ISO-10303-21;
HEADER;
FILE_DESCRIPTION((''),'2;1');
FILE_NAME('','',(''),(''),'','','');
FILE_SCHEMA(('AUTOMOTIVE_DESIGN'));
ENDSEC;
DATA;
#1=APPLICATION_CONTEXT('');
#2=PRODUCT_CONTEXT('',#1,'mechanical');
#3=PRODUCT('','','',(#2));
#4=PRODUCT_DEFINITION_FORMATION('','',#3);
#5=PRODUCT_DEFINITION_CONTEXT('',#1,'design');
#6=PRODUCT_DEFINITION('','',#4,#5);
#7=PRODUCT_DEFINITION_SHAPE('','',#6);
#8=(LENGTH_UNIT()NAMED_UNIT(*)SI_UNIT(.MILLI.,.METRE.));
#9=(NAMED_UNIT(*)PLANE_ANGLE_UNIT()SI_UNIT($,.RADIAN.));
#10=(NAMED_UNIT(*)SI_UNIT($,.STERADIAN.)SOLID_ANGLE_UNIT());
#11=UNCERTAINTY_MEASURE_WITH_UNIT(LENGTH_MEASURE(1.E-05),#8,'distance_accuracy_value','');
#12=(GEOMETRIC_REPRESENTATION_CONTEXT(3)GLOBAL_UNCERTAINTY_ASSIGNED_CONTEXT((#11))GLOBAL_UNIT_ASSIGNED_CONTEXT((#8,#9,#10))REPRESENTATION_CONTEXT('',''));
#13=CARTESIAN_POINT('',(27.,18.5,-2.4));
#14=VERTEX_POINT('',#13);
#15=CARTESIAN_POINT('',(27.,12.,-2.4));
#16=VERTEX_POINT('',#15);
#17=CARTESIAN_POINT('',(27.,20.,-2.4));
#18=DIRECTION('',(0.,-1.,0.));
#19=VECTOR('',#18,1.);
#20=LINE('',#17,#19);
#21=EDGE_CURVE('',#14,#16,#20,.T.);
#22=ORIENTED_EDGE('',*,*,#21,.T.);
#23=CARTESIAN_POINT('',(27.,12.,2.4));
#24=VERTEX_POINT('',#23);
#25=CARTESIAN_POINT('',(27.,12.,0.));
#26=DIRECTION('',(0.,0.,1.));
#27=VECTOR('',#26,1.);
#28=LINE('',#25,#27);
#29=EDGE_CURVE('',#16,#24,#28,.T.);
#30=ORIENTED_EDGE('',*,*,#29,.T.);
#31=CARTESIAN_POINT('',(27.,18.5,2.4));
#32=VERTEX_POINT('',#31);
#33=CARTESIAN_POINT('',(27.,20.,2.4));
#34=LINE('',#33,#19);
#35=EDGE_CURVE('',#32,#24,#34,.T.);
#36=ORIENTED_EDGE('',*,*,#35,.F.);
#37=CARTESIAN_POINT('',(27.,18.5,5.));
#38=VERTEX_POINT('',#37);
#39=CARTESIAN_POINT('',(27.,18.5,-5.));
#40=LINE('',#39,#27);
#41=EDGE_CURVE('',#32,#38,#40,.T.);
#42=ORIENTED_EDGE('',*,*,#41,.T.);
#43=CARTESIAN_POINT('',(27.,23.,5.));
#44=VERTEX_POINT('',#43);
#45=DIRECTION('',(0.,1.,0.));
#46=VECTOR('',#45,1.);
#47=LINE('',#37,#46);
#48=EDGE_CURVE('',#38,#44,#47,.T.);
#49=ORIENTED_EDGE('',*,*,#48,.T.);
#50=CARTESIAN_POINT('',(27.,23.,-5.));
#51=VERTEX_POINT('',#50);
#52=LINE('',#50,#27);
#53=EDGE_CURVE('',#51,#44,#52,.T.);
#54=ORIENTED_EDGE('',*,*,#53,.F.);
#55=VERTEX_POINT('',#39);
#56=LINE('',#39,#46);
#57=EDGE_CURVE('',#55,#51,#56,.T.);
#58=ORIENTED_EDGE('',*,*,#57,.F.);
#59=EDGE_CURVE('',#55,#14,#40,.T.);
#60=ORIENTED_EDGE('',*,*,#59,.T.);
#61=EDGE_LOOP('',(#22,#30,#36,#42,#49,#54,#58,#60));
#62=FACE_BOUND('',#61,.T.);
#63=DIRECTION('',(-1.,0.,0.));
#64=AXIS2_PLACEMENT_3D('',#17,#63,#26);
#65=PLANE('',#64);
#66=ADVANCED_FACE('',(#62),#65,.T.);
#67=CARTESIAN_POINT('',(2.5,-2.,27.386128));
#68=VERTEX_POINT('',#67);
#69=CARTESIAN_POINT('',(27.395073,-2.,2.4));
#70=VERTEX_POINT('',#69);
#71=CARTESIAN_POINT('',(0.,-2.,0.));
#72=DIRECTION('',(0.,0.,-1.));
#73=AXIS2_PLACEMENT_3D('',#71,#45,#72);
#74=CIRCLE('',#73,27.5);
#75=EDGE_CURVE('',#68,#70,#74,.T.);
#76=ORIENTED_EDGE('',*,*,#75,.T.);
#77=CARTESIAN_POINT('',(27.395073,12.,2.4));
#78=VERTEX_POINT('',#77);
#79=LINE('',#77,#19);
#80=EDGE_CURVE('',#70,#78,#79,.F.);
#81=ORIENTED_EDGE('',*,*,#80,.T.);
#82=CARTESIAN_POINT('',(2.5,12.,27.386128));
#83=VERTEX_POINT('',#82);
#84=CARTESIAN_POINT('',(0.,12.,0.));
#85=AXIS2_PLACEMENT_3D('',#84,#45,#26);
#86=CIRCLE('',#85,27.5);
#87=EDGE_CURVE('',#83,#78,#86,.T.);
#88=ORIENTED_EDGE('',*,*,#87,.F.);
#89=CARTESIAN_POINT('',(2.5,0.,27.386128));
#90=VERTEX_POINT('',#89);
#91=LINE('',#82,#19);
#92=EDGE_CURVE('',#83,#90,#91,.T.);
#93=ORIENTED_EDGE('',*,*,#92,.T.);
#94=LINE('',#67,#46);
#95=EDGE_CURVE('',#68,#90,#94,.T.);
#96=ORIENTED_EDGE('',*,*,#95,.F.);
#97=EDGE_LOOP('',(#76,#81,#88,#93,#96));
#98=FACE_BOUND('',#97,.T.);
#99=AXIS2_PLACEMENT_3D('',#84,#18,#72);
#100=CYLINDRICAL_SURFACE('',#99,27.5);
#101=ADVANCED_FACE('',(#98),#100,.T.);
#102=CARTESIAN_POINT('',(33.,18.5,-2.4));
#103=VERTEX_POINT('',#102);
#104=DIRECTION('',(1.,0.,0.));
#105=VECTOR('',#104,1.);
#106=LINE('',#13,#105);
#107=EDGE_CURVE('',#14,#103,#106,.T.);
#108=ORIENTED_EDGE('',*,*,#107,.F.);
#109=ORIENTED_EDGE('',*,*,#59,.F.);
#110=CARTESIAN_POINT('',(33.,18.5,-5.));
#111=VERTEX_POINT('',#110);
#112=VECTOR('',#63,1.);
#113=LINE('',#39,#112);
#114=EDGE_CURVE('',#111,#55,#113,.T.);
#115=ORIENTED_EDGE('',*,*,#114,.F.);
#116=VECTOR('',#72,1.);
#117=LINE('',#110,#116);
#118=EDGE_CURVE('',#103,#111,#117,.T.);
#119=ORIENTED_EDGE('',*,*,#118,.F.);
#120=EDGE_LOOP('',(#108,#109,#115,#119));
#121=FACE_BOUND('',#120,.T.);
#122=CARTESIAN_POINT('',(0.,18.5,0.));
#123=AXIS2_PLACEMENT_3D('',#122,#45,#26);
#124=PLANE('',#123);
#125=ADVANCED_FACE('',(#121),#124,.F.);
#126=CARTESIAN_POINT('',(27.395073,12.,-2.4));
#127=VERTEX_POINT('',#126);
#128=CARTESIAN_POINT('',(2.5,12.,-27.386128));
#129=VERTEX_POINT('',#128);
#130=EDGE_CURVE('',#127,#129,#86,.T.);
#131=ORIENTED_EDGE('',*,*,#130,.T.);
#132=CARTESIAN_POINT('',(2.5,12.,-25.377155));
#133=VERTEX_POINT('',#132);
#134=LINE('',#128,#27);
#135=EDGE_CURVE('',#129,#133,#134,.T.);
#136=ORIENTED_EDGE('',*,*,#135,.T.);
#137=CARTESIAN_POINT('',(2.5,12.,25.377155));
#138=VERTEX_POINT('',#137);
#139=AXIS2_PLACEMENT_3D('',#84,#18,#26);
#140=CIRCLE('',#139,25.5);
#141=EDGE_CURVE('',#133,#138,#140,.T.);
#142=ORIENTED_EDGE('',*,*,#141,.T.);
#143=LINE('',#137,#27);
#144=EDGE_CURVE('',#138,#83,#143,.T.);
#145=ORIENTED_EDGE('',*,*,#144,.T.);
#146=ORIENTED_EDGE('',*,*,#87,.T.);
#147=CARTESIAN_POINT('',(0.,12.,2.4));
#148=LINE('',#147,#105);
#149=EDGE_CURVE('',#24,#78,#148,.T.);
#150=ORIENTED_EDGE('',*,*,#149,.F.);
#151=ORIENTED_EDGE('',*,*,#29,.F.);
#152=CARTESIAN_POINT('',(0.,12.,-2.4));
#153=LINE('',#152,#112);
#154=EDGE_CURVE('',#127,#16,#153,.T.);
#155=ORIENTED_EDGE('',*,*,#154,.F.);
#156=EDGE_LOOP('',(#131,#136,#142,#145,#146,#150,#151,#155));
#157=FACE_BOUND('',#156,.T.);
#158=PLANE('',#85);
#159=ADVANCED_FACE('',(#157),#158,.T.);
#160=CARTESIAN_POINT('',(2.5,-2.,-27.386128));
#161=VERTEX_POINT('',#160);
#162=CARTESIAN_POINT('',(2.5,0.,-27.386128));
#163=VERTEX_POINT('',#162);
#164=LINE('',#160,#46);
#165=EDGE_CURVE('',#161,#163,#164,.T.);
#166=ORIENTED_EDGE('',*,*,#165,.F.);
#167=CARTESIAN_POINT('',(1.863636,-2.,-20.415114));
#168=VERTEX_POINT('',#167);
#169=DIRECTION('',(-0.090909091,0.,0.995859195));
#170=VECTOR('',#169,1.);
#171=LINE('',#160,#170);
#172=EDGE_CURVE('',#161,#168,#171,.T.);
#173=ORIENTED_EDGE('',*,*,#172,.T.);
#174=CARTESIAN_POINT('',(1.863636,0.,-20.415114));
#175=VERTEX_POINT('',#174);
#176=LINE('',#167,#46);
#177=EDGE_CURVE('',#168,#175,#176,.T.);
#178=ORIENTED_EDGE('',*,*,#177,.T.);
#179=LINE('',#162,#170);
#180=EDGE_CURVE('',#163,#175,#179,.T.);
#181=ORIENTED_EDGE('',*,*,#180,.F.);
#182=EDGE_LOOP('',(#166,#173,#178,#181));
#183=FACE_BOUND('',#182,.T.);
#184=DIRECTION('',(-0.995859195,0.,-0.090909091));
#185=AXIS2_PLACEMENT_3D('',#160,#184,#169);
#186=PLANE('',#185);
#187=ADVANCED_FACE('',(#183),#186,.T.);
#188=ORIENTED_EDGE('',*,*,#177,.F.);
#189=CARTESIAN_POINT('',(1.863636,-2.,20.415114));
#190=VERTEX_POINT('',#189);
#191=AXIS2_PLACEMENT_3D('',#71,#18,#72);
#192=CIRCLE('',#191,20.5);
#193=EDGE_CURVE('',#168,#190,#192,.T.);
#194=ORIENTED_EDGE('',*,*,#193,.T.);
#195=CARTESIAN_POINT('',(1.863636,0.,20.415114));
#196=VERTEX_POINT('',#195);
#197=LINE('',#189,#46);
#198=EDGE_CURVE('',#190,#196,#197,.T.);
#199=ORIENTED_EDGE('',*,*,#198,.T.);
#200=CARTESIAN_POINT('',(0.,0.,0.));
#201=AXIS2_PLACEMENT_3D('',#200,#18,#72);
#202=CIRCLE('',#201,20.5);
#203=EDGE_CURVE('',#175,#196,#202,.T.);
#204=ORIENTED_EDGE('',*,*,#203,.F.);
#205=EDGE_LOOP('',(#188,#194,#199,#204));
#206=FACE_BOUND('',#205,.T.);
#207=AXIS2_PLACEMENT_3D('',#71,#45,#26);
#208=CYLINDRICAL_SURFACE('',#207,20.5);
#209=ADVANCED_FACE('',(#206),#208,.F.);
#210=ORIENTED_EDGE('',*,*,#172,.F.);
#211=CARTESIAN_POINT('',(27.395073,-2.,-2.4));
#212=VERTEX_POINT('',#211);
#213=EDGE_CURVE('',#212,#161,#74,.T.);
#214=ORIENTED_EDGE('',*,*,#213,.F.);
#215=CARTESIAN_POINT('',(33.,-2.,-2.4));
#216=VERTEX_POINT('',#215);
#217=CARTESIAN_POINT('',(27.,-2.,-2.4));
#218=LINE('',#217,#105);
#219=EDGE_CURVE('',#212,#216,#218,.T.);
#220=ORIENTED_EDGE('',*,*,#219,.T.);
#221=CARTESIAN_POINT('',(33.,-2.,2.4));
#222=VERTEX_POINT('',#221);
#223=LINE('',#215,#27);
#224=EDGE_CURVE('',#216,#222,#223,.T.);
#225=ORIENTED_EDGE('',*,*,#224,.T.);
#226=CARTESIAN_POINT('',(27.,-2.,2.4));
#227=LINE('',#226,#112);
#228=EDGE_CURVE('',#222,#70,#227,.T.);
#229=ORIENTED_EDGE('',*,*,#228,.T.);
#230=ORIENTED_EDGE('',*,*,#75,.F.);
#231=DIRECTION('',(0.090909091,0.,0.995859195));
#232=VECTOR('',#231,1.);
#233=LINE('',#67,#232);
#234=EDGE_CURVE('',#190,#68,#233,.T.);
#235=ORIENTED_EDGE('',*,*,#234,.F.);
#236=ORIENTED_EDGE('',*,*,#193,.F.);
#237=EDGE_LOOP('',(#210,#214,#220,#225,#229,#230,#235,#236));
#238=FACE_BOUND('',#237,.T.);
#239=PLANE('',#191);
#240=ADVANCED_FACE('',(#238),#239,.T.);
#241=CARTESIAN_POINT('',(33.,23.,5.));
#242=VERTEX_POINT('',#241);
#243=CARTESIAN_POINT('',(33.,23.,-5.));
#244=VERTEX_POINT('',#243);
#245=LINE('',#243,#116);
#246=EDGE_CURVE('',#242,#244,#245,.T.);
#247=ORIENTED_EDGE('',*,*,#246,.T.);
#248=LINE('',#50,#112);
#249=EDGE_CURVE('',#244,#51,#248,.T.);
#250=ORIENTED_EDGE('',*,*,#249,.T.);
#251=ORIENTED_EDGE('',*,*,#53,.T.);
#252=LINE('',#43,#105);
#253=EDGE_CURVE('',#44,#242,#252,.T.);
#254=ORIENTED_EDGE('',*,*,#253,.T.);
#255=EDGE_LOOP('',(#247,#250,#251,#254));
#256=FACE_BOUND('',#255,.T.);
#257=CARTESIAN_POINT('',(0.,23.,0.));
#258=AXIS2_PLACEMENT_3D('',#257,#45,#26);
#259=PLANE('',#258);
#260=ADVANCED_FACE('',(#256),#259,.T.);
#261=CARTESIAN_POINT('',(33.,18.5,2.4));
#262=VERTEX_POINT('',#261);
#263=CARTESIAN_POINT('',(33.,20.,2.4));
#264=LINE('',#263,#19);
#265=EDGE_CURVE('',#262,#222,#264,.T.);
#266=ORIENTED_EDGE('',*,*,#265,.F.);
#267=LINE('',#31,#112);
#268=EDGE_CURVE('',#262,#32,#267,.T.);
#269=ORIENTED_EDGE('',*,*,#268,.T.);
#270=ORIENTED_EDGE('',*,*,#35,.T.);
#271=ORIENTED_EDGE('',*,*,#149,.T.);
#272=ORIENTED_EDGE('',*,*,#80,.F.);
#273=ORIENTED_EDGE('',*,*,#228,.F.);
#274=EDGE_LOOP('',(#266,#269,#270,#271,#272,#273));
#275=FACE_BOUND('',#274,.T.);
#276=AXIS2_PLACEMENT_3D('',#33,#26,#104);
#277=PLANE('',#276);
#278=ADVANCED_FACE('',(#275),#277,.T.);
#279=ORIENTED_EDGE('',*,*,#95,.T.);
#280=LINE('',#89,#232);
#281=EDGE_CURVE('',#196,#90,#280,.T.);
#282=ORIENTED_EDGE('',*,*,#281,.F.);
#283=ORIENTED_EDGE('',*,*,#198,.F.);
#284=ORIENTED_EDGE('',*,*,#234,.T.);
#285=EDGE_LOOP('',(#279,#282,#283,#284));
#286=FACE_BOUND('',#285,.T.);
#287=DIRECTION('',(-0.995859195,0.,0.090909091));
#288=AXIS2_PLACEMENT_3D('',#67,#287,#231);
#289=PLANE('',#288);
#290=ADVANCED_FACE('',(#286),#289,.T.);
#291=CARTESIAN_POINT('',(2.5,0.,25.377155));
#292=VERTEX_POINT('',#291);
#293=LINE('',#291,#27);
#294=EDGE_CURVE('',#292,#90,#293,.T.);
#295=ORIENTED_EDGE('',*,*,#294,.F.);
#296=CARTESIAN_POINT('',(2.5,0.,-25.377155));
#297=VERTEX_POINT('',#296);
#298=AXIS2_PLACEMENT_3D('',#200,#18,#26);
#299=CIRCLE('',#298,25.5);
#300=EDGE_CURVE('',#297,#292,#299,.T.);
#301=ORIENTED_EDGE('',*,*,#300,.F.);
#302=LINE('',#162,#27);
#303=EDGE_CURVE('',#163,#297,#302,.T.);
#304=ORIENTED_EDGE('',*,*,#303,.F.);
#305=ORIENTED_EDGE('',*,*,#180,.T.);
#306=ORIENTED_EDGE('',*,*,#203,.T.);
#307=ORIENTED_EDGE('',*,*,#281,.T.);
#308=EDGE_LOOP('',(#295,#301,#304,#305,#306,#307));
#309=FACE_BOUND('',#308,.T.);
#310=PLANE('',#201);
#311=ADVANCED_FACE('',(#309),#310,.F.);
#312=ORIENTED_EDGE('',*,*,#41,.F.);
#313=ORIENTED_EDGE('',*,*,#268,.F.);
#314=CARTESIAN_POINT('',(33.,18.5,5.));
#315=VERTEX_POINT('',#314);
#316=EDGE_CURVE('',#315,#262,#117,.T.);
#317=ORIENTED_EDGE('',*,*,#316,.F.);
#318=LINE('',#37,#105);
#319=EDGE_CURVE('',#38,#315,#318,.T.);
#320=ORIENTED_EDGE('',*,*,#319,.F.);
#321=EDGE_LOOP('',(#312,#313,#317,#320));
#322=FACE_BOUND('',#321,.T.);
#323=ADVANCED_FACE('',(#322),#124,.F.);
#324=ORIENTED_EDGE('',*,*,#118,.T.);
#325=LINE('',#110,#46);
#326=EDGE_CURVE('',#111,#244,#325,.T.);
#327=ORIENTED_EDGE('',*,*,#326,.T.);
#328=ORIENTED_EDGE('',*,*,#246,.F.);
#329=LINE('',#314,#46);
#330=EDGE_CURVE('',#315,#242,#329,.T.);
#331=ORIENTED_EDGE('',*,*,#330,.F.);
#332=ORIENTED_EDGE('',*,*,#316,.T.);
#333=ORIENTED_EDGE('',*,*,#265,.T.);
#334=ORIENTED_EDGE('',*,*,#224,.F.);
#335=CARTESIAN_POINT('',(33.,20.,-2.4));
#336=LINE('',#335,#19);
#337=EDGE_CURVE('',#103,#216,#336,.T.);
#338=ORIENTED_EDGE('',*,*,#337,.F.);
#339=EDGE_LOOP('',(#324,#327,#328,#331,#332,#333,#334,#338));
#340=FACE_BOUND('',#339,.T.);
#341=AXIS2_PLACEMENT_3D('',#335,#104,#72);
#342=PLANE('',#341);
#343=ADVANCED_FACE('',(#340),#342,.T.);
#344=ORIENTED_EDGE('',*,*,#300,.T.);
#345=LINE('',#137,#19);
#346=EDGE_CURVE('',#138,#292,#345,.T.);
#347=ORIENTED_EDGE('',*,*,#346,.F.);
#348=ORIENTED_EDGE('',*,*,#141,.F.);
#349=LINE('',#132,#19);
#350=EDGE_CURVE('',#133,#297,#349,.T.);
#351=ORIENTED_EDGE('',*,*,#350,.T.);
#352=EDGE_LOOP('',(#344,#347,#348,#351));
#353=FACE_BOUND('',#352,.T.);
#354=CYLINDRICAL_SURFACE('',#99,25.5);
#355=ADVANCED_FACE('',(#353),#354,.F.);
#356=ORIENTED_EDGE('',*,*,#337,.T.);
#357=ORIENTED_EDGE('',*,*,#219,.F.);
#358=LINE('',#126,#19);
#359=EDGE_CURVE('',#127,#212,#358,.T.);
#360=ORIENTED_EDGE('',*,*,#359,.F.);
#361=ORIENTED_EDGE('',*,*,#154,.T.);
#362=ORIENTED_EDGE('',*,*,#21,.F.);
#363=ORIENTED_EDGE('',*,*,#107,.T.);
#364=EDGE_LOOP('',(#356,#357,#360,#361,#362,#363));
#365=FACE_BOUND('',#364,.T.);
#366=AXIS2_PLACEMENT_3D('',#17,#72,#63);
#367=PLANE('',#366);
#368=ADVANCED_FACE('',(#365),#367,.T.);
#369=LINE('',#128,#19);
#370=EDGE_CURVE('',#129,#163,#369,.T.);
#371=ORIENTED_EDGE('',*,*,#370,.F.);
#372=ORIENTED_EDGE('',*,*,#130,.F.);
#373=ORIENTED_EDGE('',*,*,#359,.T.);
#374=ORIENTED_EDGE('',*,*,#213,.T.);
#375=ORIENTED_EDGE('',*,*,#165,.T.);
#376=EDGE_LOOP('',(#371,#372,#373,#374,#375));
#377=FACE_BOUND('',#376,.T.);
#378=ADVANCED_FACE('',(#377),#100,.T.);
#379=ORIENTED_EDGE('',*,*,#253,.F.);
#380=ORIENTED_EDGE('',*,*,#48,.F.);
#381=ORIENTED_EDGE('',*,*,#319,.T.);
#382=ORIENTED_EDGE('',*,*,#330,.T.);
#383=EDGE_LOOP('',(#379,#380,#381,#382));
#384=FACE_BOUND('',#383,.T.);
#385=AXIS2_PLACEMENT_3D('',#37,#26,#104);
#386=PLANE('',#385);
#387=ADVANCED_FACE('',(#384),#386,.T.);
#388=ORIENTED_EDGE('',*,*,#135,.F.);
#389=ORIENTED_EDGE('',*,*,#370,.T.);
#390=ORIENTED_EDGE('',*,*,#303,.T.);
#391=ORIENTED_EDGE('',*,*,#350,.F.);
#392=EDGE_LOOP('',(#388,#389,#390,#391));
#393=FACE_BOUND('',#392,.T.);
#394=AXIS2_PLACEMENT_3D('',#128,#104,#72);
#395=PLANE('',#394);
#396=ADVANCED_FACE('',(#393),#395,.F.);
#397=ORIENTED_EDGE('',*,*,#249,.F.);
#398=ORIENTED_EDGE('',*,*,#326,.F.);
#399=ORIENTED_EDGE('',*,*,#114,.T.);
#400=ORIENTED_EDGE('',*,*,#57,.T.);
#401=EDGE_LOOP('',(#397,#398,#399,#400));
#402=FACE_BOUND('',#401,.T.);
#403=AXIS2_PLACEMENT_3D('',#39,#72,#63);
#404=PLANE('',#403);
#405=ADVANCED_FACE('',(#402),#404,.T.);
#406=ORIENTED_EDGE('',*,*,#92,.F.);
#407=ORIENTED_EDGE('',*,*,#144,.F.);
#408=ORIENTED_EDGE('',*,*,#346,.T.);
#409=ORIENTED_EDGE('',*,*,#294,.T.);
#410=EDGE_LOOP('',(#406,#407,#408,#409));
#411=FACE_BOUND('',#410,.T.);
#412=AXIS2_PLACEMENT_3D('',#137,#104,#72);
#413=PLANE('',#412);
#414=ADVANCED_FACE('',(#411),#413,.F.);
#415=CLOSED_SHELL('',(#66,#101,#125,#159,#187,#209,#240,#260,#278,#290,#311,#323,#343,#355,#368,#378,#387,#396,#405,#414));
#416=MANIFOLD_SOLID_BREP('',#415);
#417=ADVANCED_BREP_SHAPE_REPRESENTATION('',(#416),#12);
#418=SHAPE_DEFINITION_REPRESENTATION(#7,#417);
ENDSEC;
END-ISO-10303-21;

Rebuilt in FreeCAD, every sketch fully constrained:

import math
import FreeCAD as App
import Part
import Sketcher
from FreeCAD import Vector
Q = App.Units.Quantity

doc = App.newDocument("Part")
params = doc.addObject("Spreadsheet::Sheet", "Params")
for row, (alias, value) in enumerate([
    ("sketch1_radius", "25.5 mm"),
    ("sketch1_radius2", "27.5 mm"),
    ("pad1_length", "12 mm"),
    ("sketch2_radius", "20.5 mm"),
    ("sketch2_radius2", "27.5 mm"),
    ("pad2_length", "2 mm"),
    ("sketch3_width", "6 mm"),
    ("sketch3_height", "4.8 mm"),
    ("pad3_length", "22 mm"),
    ("sketch4_width", "6 mm"),
    ("sketch4_height", "10 mm"),
    ("pad4_length", "3 mm"),
    ("pad4_length2", "1.5 mm"),
], start=1):
    params.set(f"A{row}", alias)
    params.set(f"B{row}", "=" + value)
    params.setAlias(f"B{row}", alias)

body = doc.addObject("PartDesign::Body", "Body")

# Sketch on XZ plane
sketch1 = body.newObject("Sketcher::SketchObject", "Sketch")
sketch1.AttachmentSupport = (doc.getObject("XZ_Plane"), [""])
sketch1.MapMode = "FlatFace"
sketch1.addGeometry([
    Part.LineSegment(Vector(2.5, -27.386128, 0), Vector(2.5, -25.377155, 0)),
    Part.ArcOfCircle(Part.Circle(Vector(0, 0, 0), Vector(0, 0, 1), 25.5), math.radians(-84.373729), math.radians(84.373729)),
    Part.LineSegment(Vector(2.5, 25.377155, 0), Vector(2.5, 27.386128, 0)),
    Part.ArcOfCircle(Part.Circle(Vector(0, 0, 0), Vector(0, 0, 1), 27.5), math.radians(-84.784091), math.radians(84.784091)),
], False)
sketch1.addConstraint([
    Sketcher.Constraint("Coincident", 0, 2, 1, 1),
    Sketcher.Constraint("Coincident", 1, 2, 2, 1),
    Sketcher.Constraint("Coincident", 2, 2, 3, 2),
    Sketcher.Constraint("Coincident", 3, 1, 0, 1),
    Sketcher.Constraint("Vertical", 0),
    Sketcher.Constraint("Vertical", 2),
    Sketcher.Constraint("Coincident", 1, 3, -1, 1),
    Sketcher.Constraint("Coincident", 3, 3, -1, 1),
    Sketcher.Constraint("Vertical", 0, 2, 1, 2),
    Sketcher.Constraint("Radius", 1, Q("25.5 mm")),
    Sketcher.Constraint("Radius", 3, Q("27.5 mm")),
    Sketcher.Constraint("DistanceX", -1, 1, 0, 2, Q("2.5 mm")),
])
sketch1.setExpression("Constraints[9]", "Params.sketch1_radius")
sketch1.setExpression("Constraints[10]", "Params.sketch1_radius2")
pad1 = body.newObject("PartDesign::Pad", "Pad")
pad1.Profile = sketch1
pad1.setExpression("Length", "Params.pad1_length")
pad1.Reversed = True

# Sketch on XZ plane
sketch2 = body.newObject("Sketcher::SketchObject", "Sketch001")
sketch2.AttachmentSupport = (doc.getObject("XZ_Plane"), [""])
sketch2.MapMode = "FlatFace"
sketch2.AttachmentOffset = App.Placement(Vector(0, 0, 2), App.Rotation())
sketch2.addGeometry([
    Part.LineSegment(Vector(2.5, -27.386128, 0), Vector(1.863636, -20.415114, 0)),
    Part.ArcOfCircle(Part.Circle(Vector(0, 0, 0), Vector(0, 0, 1), 20.5), math.radians(-84.784091), math.radians(84.784091)),
    Part.LineSegment(Vector(1.863636, 20.415114, 0), Vector(2.5, 27.386128, 0)),
    Part.ArcOfCircle(Part.Circle(Vector(0, 0, 0), Vector(0, 0, 1), 27.5), math.radians(-84.784091), math.radians(84.784091)),
], False)
sketch2.addConstraint([
    Sketcher.Constraint("Coincident", 0, 2, 1, 1),
    Sketcher.Constraint("Coincident", 1, 2, 2, 1),
    Sketcher.Constraint("Coincident", 2, 2, 3, 2),
    Sketcher.Constraint("Coincident", 3, 1, 0, 1),
    Sketcher.Constraint("Coincident", 1, 3, -1, 1),
    Sketcher.Constraint("Coincident", 3, 3, -1, 1),
    Sketcher.Constraint("Vertical", 0, 2, 1, 2),
    Sketcher.Constraint("Vertical", 2, 2, 3, 1),
    Sketcher.Constraint("Radius", 1, Q("20.5 mm")),
    Sketcher.Constraint("Radius", 3, Q("27.5 mm")),
    Sketcher.Constraint("DistanceX", -1, 1, 2, 2, Q("2.5 mm")),
    Sketcher.Constraint("DistanceY", 0, 2, 2, 2, Q("47.801241 mm")),
])
sketch2.setExpression("Constraints[8]", "Params.sketch2_radius")
sketch2.setExpression("Constraints[9]", "Params.sketch2_radius2")
pad2 = body.newObject("PartDesign::Pad", "Pad001")
pad2.Profile = sketch2
pad2.setExpression("Length", "Params.pad2_length")
pad2.Reversed = True

# Sketch on XZ plane
sketch3 = body.newObject("Sketcher::SketchObject", "Sketch002")
sketch3.AttachmentSupport = (doc.getObject("XZ_Plane"), [""])
sketch3.MapMode = "FlatFace"
sketch3.AttachmentOffset = App.Placement(Vector(0, 0, 2), App.Rotation())
sketch3.addGeometry([
    Part.LineSegment(Vector(27, 2.4, 0), Vector(27, -2.4, 0)),
    Part.LineSegment(Vector(27, -2.4, 0), Vector(33, -2.4, 0)),
    Part.LineSegment(Vector(33, -2.4, 0), Vector(33, 2.4, 0)),
    Part.LineSegment(Vector(33, 2.4, 0), Vector(27, 2.4, 0)),
], False)
sketch3.addConstraint([
    Sketcher.Constraint("Coincident", 0, 2, 1, 1),
    Sketcher.Constraint("Coincident", 1, 2, 2, 1),
    Sketcher.Constraint("Coincident", 2, 2, 3, 1),
    Sketcher.Constraint("Coincident", 3, 2, 0, 1),
    Sketcher.Constraint("Vertical", 0),
    Sketcher.Constraint("Horizontal", 1),
    Sketcher.Constraint("Vertical", 2),
    Sketcher.Constraint("Horizontal", 3),
    Sketcher.Constraint("DistanceX", 1, 1, 1, 2, Q("6 mm")),
    Sketcher.Constraint("DistanceY", 0, 2, 0, 1, Q("4.8 mm")),
    Sketcher.Constraint("DistanceX", -1, 1, 0, 2, Q("27 mm")),
    Sketcher.Constraint("DistanceY", 0, 2, -1, 1, Q("2.4 mm")),
])
sketch3.setExpression("Constraints[8]", "Params.sketch3_width")
sketch3.setExpression("Constraints[9]", "Params.sketch3_height")
pad3 = body.newObject("PartDesign::Pad", "Pad002")
pad3.Profile = sketch3
pad3.setExpression("Length", "Params.pad3_length")
pad3.Reversed = True

# Sketch on XZ plane
sketch4 = body.newObject("Sketcher::SketchObject", "Sketch003")
sketch4.AttachmentSupport = (doc.getObject("XZ_Plane"), [""])
sketch4.MapMode = "FlatFace"
sketch4.AttachmentOffset = App.Placement(Vector(0, 0, -20), App.Rotation())
sketch4.addGeometry([
    Part.LineSegment(Vector(27, -5, 0), Vector(27, 5, 0)),
    Part.LineSegment(Vector(27, 5, 0), Vector(33, 5, 0)),
    Part.LineSegment(Vector(33, 5, 0), Vector(33, -5, 0)),
    Part.LineSegment(Vector(33, -5, 0), Vector(27, -5, 0)),
], False)
sketch4.addConstraint([
    Sketcher.Constraint("Coincident", 0, 2, 1, 1),
    Sketcher.Constraint("Coincident", 1, 2, 2, 1),
    Sketcher.Constraint("Coincident", 2, 2, 3, 1),
    Sketcher.Constraint("Coincident", 3, 2, 0, 1),
    Sketcher.Constraint("Vertical", 0),
    Sketcher.Constraint("Horizontal", 1),
    Sketcher.Constraint("Vertical", 2),
    Sketcher.Constraint("Horizontal", 3),
    Sketcher.Constraint("DistanceX", 1, 1, 1, 2, Q("6 mm")),
    Sketcher.Constraint("DistanceY", 0, 1, 0, 2, Q("10 mm")),
    Sketcher.Constraint("DistanceX", -1, 1, 0, 2, Q("27 mm")),
    Sketcher.Constraint("DistanceY", -1, 1, 0, 2, Q("5 mm")),
])
sketch4.setExpression("Constraints[8]", "Params.sketch4_width")
sketch4.setExpression("Constraints[9]", "Params.sketch4_height")
pad4 = body.newObject("PartDesign::Pad", "Pad003")
pad4.Profile = sketch4
pad4.Type = "TwoLengths"
pad4.setExpression("Length", "Params.pad4_length")
pad4.setExpression("Length2", "Params.pad4_length2")
pad4.Reversed = True

doc.recompute()
